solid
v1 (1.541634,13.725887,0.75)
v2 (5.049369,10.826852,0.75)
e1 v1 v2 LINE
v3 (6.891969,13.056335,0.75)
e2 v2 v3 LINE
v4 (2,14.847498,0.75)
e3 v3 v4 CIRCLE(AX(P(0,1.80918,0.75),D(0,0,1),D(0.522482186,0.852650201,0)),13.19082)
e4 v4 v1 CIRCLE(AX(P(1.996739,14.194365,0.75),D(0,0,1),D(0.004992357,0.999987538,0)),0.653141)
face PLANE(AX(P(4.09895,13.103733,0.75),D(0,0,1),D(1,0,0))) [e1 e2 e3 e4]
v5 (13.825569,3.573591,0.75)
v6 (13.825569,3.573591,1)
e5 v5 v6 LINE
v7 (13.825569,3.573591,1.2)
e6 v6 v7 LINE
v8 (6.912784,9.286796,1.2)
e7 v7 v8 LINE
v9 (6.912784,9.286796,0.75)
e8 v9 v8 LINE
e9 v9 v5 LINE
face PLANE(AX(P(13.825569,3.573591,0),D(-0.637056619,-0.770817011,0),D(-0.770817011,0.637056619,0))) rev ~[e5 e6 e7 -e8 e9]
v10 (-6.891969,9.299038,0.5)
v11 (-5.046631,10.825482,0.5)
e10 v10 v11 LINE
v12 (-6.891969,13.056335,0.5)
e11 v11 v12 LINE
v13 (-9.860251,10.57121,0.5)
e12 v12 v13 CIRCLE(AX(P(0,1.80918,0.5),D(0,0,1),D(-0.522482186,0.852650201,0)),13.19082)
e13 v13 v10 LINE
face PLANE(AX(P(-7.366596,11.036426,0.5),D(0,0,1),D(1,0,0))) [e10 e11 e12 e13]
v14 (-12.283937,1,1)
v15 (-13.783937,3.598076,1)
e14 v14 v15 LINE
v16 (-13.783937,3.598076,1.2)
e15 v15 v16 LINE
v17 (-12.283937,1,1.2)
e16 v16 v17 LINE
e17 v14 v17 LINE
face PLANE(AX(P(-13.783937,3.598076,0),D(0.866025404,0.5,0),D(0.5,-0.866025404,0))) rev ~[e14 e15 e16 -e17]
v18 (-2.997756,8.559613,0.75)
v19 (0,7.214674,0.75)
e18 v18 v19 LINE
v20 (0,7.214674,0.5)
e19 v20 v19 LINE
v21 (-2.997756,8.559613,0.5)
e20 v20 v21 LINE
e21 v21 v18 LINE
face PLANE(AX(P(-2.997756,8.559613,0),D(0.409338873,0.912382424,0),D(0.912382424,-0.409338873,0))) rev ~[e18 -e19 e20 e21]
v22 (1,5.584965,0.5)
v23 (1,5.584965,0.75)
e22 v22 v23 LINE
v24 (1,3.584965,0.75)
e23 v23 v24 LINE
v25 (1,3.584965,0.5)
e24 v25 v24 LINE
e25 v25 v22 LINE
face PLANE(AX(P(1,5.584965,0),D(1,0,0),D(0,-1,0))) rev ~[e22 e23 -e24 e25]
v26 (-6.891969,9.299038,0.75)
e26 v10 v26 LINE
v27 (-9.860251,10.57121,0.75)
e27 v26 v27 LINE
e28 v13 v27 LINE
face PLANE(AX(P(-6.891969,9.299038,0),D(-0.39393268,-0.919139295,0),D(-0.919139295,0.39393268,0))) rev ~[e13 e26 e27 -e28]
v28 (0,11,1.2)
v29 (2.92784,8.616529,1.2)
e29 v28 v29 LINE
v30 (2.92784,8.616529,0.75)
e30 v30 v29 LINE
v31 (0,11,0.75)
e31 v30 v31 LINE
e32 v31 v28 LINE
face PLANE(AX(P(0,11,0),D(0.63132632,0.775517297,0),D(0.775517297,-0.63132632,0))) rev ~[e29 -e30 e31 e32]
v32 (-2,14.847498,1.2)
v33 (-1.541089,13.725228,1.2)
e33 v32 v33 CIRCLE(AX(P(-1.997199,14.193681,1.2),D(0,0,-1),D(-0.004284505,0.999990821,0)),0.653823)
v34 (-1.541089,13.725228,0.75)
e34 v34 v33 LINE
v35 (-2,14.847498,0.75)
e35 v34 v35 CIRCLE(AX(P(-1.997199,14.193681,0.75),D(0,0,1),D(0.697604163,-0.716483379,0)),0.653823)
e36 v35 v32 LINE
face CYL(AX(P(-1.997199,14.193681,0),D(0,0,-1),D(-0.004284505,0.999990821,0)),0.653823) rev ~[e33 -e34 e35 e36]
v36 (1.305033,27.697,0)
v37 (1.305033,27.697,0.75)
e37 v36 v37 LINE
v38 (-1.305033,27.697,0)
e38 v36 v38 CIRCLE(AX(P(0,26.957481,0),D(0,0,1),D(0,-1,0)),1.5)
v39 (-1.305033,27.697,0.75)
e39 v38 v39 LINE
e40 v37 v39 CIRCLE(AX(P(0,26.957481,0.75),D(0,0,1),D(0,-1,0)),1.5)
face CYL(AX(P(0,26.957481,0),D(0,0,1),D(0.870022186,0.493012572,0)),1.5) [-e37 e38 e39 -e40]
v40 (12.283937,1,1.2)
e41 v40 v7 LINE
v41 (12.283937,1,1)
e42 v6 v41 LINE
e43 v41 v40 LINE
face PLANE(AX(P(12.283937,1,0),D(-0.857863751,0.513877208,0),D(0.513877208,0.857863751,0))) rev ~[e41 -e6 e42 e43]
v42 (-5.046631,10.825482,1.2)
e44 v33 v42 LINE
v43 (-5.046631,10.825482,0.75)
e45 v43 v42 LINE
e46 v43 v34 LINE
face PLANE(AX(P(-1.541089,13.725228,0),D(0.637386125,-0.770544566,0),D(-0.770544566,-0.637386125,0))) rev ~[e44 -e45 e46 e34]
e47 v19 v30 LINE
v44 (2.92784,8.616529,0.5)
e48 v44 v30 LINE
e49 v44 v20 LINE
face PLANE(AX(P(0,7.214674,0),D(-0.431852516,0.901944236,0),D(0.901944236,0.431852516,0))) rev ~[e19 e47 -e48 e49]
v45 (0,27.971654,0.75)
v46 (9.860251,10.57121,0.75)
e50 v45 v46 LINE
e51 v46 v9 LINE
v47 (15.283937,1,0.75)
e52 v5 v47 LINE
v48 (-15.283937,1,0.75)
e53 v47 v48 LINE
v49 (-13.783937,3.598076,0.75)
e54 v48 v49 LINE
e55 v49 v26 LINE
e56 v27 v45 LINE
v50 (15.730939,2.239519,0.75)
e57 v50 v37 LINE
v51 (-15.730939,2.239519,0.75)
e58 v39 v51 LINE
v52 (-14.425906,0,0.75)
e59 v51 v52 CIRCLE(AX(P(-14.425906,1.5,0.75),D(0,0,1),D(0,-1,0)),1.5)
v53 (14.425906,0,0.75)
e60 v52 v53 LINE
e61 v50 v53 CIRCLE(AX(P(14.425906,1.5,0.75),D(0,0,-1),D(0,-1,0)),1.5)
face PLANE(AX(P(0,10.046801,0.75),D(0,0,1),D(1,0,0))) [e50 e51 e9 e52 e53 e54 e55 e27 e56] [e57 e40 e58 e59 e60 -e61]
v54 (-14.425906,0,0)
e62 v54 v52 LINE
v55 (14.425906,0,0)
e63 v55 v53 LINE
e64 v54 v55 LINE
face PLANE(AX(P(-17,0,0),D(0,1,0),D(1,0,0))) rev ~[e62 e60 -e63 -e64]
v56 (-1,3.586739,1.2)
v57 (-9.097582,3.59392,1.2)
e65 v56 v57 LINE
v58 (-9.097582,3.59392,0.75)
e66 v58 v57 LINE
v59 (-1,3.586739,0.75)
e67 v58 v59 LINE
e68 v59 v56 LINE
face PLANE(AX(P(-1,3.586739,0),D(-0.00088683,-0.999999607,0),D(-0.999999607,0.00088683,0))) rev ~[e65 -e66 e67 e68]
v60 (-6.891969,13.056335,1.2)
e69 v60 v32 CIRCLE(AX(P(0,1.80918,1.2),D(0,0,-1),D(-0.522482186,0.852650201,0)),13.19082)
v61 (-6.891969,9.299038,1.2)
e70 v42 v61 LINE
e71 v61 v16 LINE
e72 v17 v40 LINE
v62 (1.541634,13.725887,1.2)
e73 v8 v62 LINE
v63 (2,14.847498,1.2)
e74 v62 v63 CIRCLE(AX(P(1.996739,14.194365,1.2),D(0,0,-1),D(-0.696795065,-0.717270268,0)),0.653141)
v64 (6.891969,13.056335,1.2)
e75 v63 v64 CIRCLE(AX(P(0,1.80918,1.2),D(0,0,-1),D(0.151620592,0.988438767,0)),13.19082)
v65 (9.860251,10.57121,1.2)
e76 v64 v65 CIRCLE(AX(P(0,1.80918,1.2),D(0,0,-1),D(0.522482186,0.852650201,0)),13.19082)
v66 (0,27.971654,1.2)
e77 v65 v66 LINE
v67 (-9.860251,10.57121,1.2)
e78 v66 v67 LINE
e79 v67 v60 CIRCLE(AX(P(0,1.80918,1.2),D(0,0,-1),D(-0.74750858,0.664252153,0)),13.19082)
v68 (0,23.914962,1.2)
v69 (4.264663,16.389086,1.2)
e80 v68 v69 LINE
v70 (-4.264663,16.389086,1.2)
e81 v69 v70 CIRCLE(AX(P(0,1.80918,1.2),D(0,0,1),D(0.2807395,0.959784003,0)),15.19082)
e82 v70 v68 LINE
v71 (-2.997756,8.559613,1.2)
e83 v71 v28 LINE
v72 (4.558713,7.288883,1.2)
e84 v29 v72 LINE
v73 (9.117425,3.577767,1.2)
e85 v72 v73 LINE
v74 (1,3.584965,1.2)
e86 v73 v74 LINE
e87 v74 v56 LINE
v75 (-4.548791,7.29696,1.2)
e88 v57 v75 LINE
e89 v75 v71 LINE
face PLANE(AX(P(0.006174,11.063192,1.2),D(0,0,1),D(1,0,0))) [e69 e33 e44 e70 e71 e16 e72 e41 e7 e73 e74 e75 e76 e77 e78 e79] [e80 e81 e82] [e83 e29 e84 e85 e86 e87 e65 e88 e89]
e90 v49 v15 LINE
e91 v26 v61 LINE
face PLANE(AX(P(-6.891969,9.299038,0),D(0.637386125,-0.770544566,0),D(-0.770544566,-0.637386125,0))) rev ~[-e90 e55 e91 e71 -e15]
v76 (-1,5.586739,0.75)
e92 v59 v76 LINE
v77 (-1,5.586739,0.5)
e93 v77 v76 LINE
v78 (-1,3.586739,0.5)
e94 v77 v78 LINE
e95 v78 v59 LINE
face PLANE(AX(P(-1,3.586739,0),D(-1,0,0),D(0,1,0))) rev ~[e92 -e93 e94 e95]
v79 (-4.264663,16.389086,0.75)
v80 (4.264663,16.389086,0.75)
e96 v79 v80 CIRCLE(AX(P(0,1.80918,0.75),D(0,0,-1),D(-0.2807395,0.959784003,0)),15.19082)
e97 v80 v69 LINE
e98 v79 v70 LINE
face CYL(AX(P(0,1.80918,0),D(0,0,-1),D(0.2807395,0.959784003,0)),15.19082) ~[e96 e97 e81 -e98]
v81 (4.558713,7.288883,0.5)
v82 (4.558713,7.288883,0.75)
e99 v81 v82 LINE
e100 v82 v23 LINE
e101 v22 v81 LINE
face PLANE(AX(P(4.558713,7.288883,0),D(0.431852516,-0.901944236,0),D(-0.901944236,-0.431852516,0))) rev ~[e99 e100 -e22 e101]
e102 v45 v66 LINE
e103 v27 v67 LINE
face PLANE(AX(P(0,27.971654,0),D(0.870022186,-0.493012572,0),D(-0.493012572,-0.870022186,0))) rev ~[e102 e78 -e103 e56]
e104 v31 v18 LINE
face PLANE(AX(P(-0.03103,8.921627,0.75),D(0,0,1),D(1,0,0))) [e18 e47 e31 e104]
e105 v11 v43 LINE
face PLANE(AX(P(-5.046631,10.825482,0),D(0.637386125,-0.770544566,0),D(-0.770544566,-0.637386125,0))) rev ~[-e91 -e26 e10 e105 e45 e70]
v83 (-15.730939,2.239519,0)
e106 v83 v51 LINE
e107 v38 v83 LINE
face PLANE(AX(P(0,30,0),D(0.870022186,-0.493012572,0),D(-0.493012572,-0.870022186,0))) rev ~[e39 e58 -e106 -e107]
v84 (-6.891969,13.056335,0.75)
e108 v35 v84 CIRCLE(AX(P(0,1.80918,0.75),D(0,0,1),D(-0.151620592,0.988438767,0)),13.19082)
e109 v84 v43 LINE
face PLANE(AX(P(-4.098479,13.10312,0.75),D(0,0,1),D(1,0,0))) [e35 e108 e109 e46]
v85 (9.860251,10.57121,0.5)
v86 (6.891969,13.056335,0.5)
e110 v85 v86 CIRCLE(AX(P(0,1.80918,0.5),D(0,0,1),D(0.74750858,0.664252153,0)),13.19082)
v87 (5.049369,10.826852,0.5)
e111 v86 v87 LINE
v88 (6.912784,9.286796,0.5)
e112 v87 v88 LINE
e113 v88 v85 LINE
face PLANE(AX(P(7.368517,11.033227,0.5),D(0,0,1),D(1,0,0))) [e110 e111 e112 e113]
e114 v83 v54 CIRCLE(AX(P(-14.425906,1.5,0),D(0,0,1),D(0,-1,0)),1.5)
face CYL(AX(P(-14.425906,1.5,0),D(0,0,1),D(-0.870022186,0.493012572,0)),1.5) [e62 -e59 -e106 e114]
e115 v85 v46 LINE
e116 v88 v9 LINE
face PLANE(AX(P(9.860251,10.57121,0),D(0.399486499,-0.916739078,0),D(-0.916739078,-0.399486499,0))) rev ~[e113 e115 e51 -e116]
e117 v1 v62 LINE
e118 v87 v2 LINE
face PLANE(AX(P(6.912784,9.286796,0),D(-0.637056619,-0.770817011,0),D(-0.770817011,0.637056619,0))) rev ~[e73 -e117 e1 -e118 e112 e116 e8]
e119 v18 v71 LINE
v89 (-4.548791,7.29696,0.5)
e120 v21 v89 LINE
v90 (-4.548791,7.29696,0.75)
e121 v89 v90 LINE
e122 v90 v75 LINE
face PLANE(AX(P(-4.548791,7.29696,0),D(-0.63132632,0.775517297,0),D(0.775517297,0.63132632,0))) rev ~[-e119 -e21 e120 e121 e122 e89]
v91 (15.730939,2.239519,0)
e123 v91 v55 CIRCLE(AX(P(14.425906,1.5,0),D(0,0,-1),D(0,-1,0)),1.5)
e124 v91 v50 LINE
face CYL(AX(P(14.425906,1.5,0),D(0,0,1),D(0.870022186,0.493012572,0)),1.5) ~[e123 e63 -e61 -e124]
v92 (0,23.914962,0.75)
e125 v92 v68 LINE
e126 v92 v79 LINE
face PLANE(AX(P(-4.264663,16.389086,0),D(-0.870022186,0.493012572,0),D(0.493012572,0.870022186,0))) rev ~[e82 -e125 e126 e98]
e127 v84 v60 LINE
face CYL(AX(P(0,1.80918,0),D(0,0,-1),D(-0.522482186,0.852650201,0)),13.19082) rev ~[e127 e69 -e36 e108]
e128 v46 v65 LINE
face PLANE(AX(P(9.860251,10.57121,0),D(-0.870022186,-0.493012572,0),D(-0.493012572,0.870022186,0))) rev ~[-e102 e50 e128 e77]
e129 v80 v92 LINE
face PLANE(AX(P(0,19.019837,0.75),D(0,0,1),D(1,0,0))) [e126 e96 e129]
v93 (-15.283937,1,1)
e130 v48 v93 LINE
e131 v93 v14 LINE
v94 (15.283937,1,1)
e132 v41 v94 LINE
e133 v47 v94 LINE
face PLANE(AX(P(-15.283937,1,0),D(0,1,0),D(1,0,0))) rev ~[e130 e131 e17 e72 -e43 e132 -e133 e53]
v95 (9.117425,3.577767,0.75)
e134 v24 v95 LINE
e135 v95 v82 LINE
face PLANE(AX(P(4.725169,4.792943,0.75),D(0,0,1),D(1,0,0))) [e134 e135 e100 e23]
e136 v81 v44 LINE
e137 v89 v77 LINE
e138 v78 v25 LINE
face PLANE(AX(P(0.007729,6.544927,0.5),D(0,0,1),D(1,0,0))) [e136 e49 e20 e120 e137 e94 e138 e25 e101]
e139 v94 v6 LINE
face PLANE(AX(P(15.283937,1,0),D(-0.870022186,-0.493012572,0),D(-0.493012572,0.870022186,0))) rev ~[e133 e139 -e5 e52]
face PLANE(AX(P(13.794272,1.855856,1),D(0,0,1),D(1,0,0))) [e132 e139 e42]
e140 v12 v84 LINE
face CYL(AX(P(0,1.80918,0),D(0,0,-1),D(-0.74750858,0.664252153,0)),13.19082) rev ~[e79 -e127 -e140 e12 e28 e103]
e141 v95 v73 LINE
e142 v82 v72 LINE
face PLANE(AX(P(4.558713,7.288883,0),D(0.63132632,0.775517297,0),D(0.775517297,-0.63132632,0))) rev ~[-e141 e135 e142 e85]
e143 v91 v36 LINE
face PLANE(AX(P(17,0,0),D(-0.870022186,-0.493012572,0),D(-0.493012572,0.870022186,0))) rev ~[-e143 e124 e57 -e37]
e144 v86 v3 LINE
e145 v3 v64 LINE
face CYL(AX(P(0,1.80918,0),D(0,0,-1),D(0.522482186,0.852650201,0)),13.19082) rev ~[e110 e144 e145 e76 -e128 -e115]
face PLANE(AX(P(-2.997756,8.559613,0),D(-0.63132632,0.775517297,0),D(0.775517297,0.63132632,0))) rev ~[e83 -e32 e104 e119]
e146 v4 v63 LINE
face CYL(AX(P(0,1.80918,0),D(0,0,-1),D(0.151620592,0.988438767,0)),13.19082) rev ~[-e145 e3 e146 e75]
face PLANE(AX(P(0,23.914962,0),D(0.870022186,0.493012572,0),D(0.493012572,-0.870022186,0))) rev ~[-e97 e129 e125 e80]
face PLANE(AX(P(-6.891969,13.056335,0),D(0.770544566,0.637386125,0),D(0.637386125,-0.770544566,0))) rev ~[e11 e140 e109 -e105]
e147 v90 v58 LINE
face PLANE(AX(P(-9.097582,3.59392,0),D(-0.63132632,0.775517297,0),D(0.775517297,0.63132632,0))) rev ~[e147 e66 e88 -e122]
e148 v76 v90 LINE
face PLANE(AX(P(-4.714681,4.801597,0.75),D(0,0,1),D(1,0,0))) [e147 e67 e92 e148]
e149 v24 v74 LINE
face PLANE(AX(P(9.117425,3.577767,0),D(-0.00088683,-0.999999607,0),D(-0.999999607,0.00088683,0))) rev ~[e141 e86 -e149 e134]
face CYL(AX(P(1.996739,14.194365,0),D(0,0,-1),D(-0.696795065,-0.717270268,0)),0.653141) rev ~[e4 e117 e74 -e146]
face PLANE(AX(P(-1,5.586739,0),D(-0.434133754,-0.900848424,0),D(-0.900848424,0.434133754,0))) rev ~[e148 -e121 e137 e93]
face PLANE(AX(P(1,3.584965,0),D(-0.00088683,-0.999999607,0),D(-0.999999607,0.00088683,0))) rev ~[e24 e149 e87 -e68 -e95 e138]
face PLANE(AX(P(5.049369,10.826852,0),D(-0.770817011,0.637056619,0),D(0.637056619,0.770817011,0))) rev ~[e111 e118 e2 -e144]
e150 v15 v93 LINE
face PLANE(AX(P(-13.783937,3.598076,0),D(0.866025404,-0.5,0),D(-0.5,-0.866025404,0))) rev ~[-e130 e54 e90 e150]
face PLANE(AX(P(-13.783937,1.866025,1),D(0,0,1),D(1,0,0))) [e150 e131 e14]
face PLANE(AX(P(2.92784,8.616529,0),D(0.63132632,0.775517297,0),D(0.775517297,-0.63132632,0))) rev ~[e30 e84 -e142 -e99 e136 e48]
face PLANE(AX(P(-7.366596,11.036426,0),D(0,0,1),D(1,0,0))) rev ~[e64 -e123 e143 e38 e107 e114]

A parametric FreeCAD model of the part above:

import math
import FreeCAD as App
import Part
import Sketcher
Q = App.Units.Quantity


def edges_at(feature, points):
    """Names of the edges that pass closest to the given points."""
    edges = feature.Shape.Edges
    near = lambda p: min(range(len(edges)), key=lambda i: edges[i].distToShape(Part.Vertex(*p))[0])
    return sorted({f"Edge{near(p) + 1}" for p in points})


def add_polygon(sketch, points):
    """Adds a closed chain of lines whose ends are joined by coincident constraints."""
    first, n = sketch.GeometryCount, len(points)
    for a, b in zip(points, points[1:] + points[:1]):
        sketch.addGeometry(Part.LineSegment(App.Vector(*a, 0), App.Vector(*b, 0)), False)
    for i in range(n):
        sketch.addConstraint(Sketcher.Constraint("Coincident", first + i, 2, first + (i + 1) % n, 1))

doc = App.newDocument("Part")
body = doc.addObject("PartDesign::Body", "Body")

# Sketch on XY plane
sketch1 = body.newObject("Sketcher::SketchObject", "Sketch")
sketch1.AttachmentSupport = (doc.getObject("XY_Plane"), [""])
sketch1.MapMode = "FlatFace"
add_polygon(sketch1, [(17, 0), (0, 30), (-17, 0)])  # lines 0-2
add_polygon(sketch1, [(-6.9, 9.3), (-9.9, 10.6), (0, 28), (9.9, 10.6), (6.9, 9.3), (13.8, 3.6), (15.3, 1), (-15.3, 1), (-13.8, 3.6)])  # lines 3-11
sketch1.addConstraint([
    Sketcher.Constraint("Horizontal", 2),
    Sketcher.Constraint("Horizontal", 9),
    Sketcher.Constraint("Symmetric", 1, 2, 2, 2, -1, 1),
    Sketcher.Constraint("Symmetric", 3, 2, 5, 2, -2),
    Sketcher.Constraint("PointOnObject", 0, 2, -2),
    Sketcher.Constraint("PointOnObject", 4, 2, -2),
    Sketcher.Constraint("Parallel", 1, 4),
    Sketcher.Constraint("Parallel", 5, 8),
    Sketcher.Constraint("DistanceX", 2, 1, 2, 2, 34.0),
    Sketcher.Constraint("Angle", 10, Q("60 deg")),
    Sketcher.Constraint("Distance", 4, 20.0),
    Sketcher.Constraint("Distance", 10, 3.0),
    Sketcher.Constraint("DistanceY", -1, 1, 0, 2, 30.0),
    Sketcher.Constraint("DistanceY", -1, 1, 8, 2, 1.0),
    Sketcher.Constraint("DistanceX", 9, 2, 9, 1, 30.567875),
    Sketcher.Constraint("DistanceY", -1, 1, 3, 2, 10.57121),
    Sketcher.Constraint("DistanceX", -1, 1, 7, 2, 13.825569),
    Sketcher.Constraint("DistanceY", -1, 1, 7, 2, 3.573591),
    Sketcher.Constraint("DistanceX", 11, 2, -1, 1, 6.891969),
    Sketcher.Constraint("DistanceY", -1, 1, 11, 2, 9.299038),
    Sketcher.Constraint("DistanceY", 6, 2, 4, 2, 18.684859),
    Sketcher.Constraint("DistanceX", 9, 2, 6, 2, 22.196722),
])
pad1 = body.newObject("PartDesign::Pad", "Pad")
pad1.Profile = sketch1
pad1.Length = 0.75
body2 = doc.addObject("PartDesign::Body", "Body001")

# Sketch on XY plane
sketch2 = body2.newObject("Sketcher::SketchObject", "Sketch001")
sketch2.AttachmentSupport = (doc.getObject("XY_Plane001"), [""])
sketch2.MapMode = "FlatFace"
sketch2.addGeometry([
    Part.LineSegment(App.Vector(4, 16, 0), App.Vector(0, 24, 0)),
    Part.LineSegment(App.Vector(0, 24, 0), App.Vector(-4, 16, 0)),
    Part.ArcOfCircle(Part.Circle(App.Vector(0, 2, 0), App.Vector(0, 0, 1), 15), math.radians(74), math.radians(106)),
], False)
sketch2.addConstraint([
    Sketcher.Constraint("Coincident", 0, 2, 1, 1),
    Sketcher.Constraint("Coincident", 1, 2, 2, 2),
    Sketcher.Constraint("Coincident", 2, 1, 0, 1),
    Sketcher.Constraint("Symmetric", 1, 2, 2, 1, -2),
    Sketcher.Constraint("PointOnObject", 0, 2, -2),
    Sketcher.Constraint("Radius", 2, 15.19082),
    Sketcher.Constraint("DistanceY", -1, 1, 2, 3, 1.80918),
    Sketcher.Constraint("Distance", 0, 8.650212),
    Sketcher.Constraint("DistanceY", -1, 1, 0, 2, 23.914962),
])
pad2 = body2.newObject("PartDesign::Pad", "Pad001")
pad2.Profile = sketch2
pad2.Length = 0.75
body3 = doc.addObject("PartDesign::Body", "Body002")

# Sketch on XY plane
sketch3 = body3.newObject("Sketcher::SketchObject", "Sketch002")
sketch3.AttachmentSupport = (doc.getObject("XY_Plane002"), [""])
sketch3.MapMode = "FlatFace"
sketch3.addGeometry([
    Part.ArcOfCircle(Part.Circle(App.Vector(0, 1.8, 0), App.Vector(0, 0, 1), 13.2), math.radians(99), math.radians(121)),
    Part.LineSegment(App.Vector(-6.9, 13.1, 0), App.Vector(-5, 10.8, 0)),
    Part.LineSegment(App.Vector(-5, 10.8, 0), App.Vector(-1.5, 13.7, 0)),
    Part.ArcOfCircle(Part.Circle(App.Vector(-2, 14.2, 0), App.Vector(0, 0, 1), 0.7), math.radians(-46), math.radians(90)),
], False)
sketch3.addConstraint([
    Sketcher.Constraint("Coincident", 0, 2, 1, 1),
    Sketcher.Constraint("Coincident", 1, 2, 2, 1),
    Sketcher.Constraint("Coincident", 2, 2, 3, 1),
    Sketcher.Constraint("Coincident", 3, 2, 0, 1),
    Sketcher.Constraint("PointOnObject", 0, 3, -2),
    Sketcher.Constraint("Perpendicular", 1, 2),
    Sketcher.Constraint("DistanceX", 3, 2, -1, 1, 2.0),
    Sketcher.Constraint("Radius", 0, 13.19082),
    Sketcher.Constraint("Radius", 3, 0.653823),
    Sketcher.Constraint("DistanceX", 3, 3, -1, 1, 1.997199),
    Sketcher.Constraint("DistanceY", 1, 2, 3, 3, 3.368199),
    Sketcher.Constraint("DistanceY", -1, 1, 0, 3, 1.80918),
    Sketcher.Constraint("DistanceX", 0, 2, -1, 1, 6.891969),
    Sketcher.Constraint("DistanceX", 1, 2, -1, 1, 5.046631),
])
pad3 = body3.newObject("PartDesign::Pad", "Pad002")
pad3.Profile = sketch3
pad3.Length = 0.75
body4 = doc.addObject("PartDesign::Body", "Body003")

# Sketch on XY plane
sketch4 = body4.newObject("Sketcher::SketchObject", "Sketch003")
sketch4.AttachmentSupport = (doc.getObject("XY_Plane003"), [""])
sketch4.MapMode = "FlatFace"
sketch4.addGeometry([
    Part.LineSegment(App.Vector(5, 10.8, 0), App.Vector(6.9, 13.1, 0)),
    Part.ArcOfCircle(Part.Circle(App.Vector(0, 1.8, 0), App.Vector(0, 0, 1), 13.2), math.radians(59), math.radians(81)),
    Part.ArcOfCircle(Part.Circle(App.Vector(2, 14.2, 0), App.Vector(0, 0, 1), 0.7), math.radians(90), math.radians(226)),
    Part.LineSegment(App.Vector(1.5, 13.7, 0), App.Vector(5, 10.8, 0)),
], False)
sketch4.addConstraint([
    Sketcher.Constraint("Coincident", 0, 2, 1, 1),
    Sketcher.Constraint("Coincident", 1, 2, 2, 1),
    Sketcher.Constraint("Coincident", 2, 2, 3, 1),
    Sketcher.Constraint("Coincident", 3, 2, 0, 1),
    Sketcher.Constraint("PointOnObject", 1, 3, -2),
    Sketcher.Constraint("Perpendicular", 0, 3),
    Sketcher.Constraint("DistanceX", -1, 1, 1, 2, 2.0),
    Sketcher.Constraint("Radius", 1, 13.19082),
    Sketcher.Constraint("Radius", 2, 0.653141),
    Sketcher.Constraint("DistanceX", 3, 2, 0, 2, 1.8426),
    Sketcher.Constraint("Distance", 3, 4.550671),
    Sketcher.Constraint("DistanceY", -1, 1, 1, 3, 1.80918),
    Sketcher.Constraint("DistanceX", -1, 1, 2, 3, 1.996739),
    Sketcher.Constraint("DistanceX", -1, 1, 0, 2, 6.891969),
])
pad4 = body4.newObject("PartDesign::Pad", "Pad003")
pad4.Profile = sketch4
pad4.Length = 0.75
body5 = doc.addObject("PartDesign::Body", "Body004")

# Sketch on XY plane
sketch5 = body5.newObject("Sketcher::SketchObject", "Sketch004")
sketch5.AttachmentSupport = (doc.getObject("XY_Plane004"), [""])
sketch5.MapMode = "FlatFace"
add_polygon(sketch5, [(0, 11), (-3, 8.6), (0, 7.2), (2.9, 8.6)])  # lines 0-3
sketch5.addConstraint([
    Sketcher.Constraint("PointOnObject", 1, 2, -2),
    Sketcher.Constraint("PointOnObject", 3, 2, -2),
    Sketcher.Constraint("DistanceY", -1, 1, 3, 2, 11.0),
    Sketcher.Constraint("Distance", 3, 3.775338),
    Sketcher.Constraint("DistanceX", -1, 1, 2, 2, 2.92784),
    Sketcher.Constraint("DistanceY", 1, 2, 0, 2, 1.344938),
    Sketcher.Constraint("Distance", 0, 3.865493),
    Sketcher.Constraint("Distance", 1, 3.285636),
])
pad5 = body5.newObject("PartDesign::Pad", "Pad004")
pad5.Profile = sketch5
pad5.Length = 0.75
body6 = doc.addObject("PartDesign::Body", "Body005")

# Sketch on XY plane
sketch6 = body6.newObject("Sketcher::SketchObject", "Sketch005")
sketch6.AttachmentSupport = (doc.getObject("XY_Plane005"), [""])
sketch6.MapMode = "FlatFace"
add_polygon(sketch6, [(-4.5, 7.3), (-9.1, 3.6), (-1, 3.6), (-1, 5.6)])  # lines 0-3
sketch6.addConstraint([
    Sketcher.Constraint("Vertical", 2),
    Sketcher.Constraint("DistanceY", 2, 1, 2, 2, 2.0),
    Sketcher.Constraint("DistanceX", 1, 2, -1, 1, 1.0),
    Sketcher.Constraint("DistanceY", -1, 1, 0, 2, 3.59392),
    Sketcher.Constraint("DistanceY", -1, 1, 1, 2, 3.586739),
    Sketcher.Constraint("DistanceX", 3, 2, -1, 1, 4.548791),
    Sketcher.Constraint("DistanceY", -1, 1, 3, 2, 7.29696),
    Sketcher.Constraint("DistanceX", 0, 2, 3, 2, 4.548791),
])
pad6 = body6.newObject("PartDesign::Pad", "Pad005")
pad6.Profile = sketch6
pad6.Length = 0.75
body7 = doc.addObject("PartDesign::Body", "Body006")

# Sketch on XY plane
sketch7 = body7.newObject("Sketcher::SketchObject", "Sketch006")
sketch7.AttachmentSupport = (doc.getObject("XY_Plane006"), [""])
sketch7.MapMode = "FlatFace"
add_polygon(sketch7, [(1, 5.6), (1, 3.6), (9.1, 3.6), (4.6, 7.3)])  # lines 0-3
sketch7.addConstraint([
    Sketcher.Constraint("Vertical", 0),
    Sketcher.Constraint("DistanceY", 0, 2, 0, 1, 2.0),
    Sketcher.Constraint("DistanceX", -1, 1, 0, 2, 1.0),
    Sketcher.Constraint("Distance", 3, 3.945601),
    Sketcher.Constraint("DistanceY", 1, 2, 0, 2, 0.007199),
    Sketcher.Constraint("Distance", 1, 8.117428),
    Sketcher.Constraint("Distance", 2, 5.878286),
    Sketcher.Constraint("DistanceY", -1, 1, 0, 2, 3.584965),
])
pad7 = body7.newObject("PartDesign::Pad", "Pad006")
pad7.Profile = sketch7
pad7.Length = 0.75
body.AllowCompound = True
doc.recompute()

boolean = body.newObject("PartDesign::Boolean", "Boolean")
boolean.Type = "Fuse"
boolean.addObjects([body2])
doc.recompute()

boolean2 = body.newObject("PartDesign::Boolean", "Boolean001")
boolean2.Type = "Fuse"
boolean2.addObjects([body3])
doc.recompute()

boolean3 = body.newObject("PartDesign::Boolean", "Boolean002")
boolean3.Type = "Fuse"
boolean3.addObjects([body4])
doc.recompute()

boolean4 = body.newObject("PartDesign::Boolean", "Boolean003")
boolean4.Type = "Fuse"
boolean4.addObjects([body5])
doc.recompute()

boolean5 = body.newObject("PartDesign::Boolean", "Boolean004")
boolean5.Type = "Fuse"
boolean5.addObjects([body6])
doc.recompute()

boolean6 = body.newObject("PartDesign::Boolean", "Boolean005")
boolean6.Type = "Fuse"
boolean6.addObjects([body7])

# Sketch on XY plane
sketch8 = body.newObject("Sketcher::SketchObject", "Sketch007")
sketch8.AttachmentSupport = (doc.getObject("XY_Plane"), [""])
sketch8.MapMode = "FlatFace"
sketch8.addGeometry(Part.LineSegment(App.Vector(9.9, 10.6, 0), App.Vector(0, 28, 0)), False)  # 0
sketch8.addGeometry(Part.LineSegment(App.Vector(0, 28, 0), App.Vector(-9.9, 10.6, 0)), False)  # 1
sketch8.addGeometry(Part.ArcOfCircle(Part.Circle(App.Vector(0, 1.8, 0), App.Vector(0, 0, 1), 13.2), math.radians(121.5), math.radians(138.38)), False)  # 2
sketch8.addGeometry(Part.ArcOfCircle(Part.Circle(App.Vector(0, 1.8, 0), App.Vector(0, 0, 1), 13.2), math.radians(99), math.radians(121)), False)  # 3
sketch8.addGeometry(Part.ArcOfCircle(Part.Circle(App.Vector(-2, 14.2, 0), App.Vector(0, 0, 1), 0.7), math.radians(-46), math.radians(90)), False)  # 4
sketch8.addGeometry(Part.LineSegment(App.Vector(-1.5, 13.7, 0), App.Vector(-5, 10.8, 0)), False)  # 5
sketch8.addGeometry(Part.LineSegment(App.Vector(-5, 10.8, 0), App.Vector(-6.9, 9.3, 0)), False)  # 6
sketch8.addGeometry(Part.LineSegment(App.Vector(-6.9, 9.3, 0), App.Vector(-13.8, 3.6, 0)), False)  # 7
sketch8.addGeometry(Part.LineSegment(App.Vector(-13.8, 3.6, 0), App.Vector(-12.3, 1, 0)), False)  # 8
sketch8.addGeometry(Part.LineSegment(App.Vector(-12.3, 1, 0), App.Vector(12.3, 1, 0)), False)  # 9
sketch8.addGeometry(Part.LineSegment(App.Vector(12.3, 1, 0), App.Vector(13.8, 3.6, 0)), False)  # 10
sketch8.addGeometry(Part.LineSegment(App.Vector(13.8, 3.6, 0), App.Vector(6.9, 9.3, 0)), False)  # 11
sketch8.addGeometry(Part.LineSegment(App.Vector(6.9, 9.3, 0), App.Vector(1.5, 13.7, 0)), False)  # 12
sketch8.addGeometry(Part.ArcOfCircle(Part.Circle(App.Vector(2, 14.2, 0), App.Vector(0, 0, 1), 0.7), math.radians(90), math.radians(226)), False)  # 13
sketch8.addGeometry(Part.ArcOfCircle(Part.Circle(App.Vector(0, 1.8, 0), App.Vector(0, 0, 1), 13.2), math.radians(59), math.radians(81)), False)  # 14
sketch8.addGeometry(Part.ArcOfCircle(Part.Circle(App.Vector(0, 1.8, 0), App.Vector(0, 0, 1), 13.2), math.radians(41.62), math.radians(58.5)), False)  # 15
add_polygon(sketch8, [(1, 3.6), (-1, 3.6), (-9.1, 3.6), (-4.5, 7.3), (-3, 8.6), (0, 11), (2.9, 8.6), (4.6, 7.3), (9.1, 3.6)])  # lines 16-24
sketch8.addGeometry(Part.ArcOfCircle(Part.Circle(App.Vector(0, 1.8, 0), App.Vector(0, 0, 1), 15.2), math.radians(74), math.radians(106)), False)  # 25
sketch8.addGeometry(Part.LineSegment(App.Vector(-4.3, 16.4, 0), App.Vector(0, 23.9, 0)), False)  # 26
sketch8.addGeometry(Part.LineSegment(App.Vector(0, 23.9, 0), App.Vector(4.3, 16.4, 0)), False)  # 27
sketch8.addConstraint([
    Sketcher.Constraint("Coincident", 0, 2, 1, 1),
    Sketcher.Constraint("Coincident", 1, 2, 2, 2),
    Sketcher.Constraint("Tangent", 2, 1, 3, 2),
    Sketcher.Constraint("Coincident", 3, 1, 4, 2),
    Sketcher.Constraint("Coincident", 4, 1, 5, 1),
    Sketcher.Constraint("Coincident", 5, 2, 6, 1),
    Sketcher.Constraint("Coincident", 6, 2, 7, 1),
    Sketcher.Constraint("Coincident", 7, 2, 8, 1),
    Sketcher.Constraint("Coincident", 8, 2, 9, 1),
    Sketcher.Constraint("Coincident", 9, 2, 10, 1),
    Sketcher.Constraint("Coincident", 10, 2, 11, 1),
    Sketcher.Constraint("Coincident", 11, 2, 12, 1),
    Sketcher.Constraint("Coincident", 12, 2, 13, 2),
    Sketcher.Constraint("Coincident", 13, 1, 14, 2),
    Sketcher.Constraint("Tangent", 14, 1, 15, 2),
    Sketcher.Constraint("Coincident", 15, 1, 0, 1),
    Sketcher.Constraint("Coincident", 25, 2, 26, 1),
    Sketcher.Constraint("Coincident", 26, 2, 27, 1),
    Sketcher.Constraint("Coincident", 27, 2, 25, 1),
    Sketcher.Constraint("Horizontal", 9),
    Sketcher.Constraint("Coincident", 14, 3, 2, 3),
    Sketcher.Constraint("Coincident", 25, 3, 2, 3),
    Sketcher.Constraint("Equal", 2, 3),
    Sketcher.Constraint("Equal", 3, 14),
    Sketcher.Constraint("Equal", 14, 15),
    Sketcher.Constraint("Symmetric", 3, 1, 13, 1, -2),
    Sketcher.Constraint("PointOnObject", 0, 2, -2),
    Sketcher.Constraint("PointOnObject", 20, 2, -2),
    Sketcher.Constraint("PointOnObject", 26, 2, -2),
    Sketcher.Constraint("Parallel", 5, 6),
    Sketcher.Constraint("Parallel", 6, 7),
    Sketcher.Constraint("Parallel", 11, 12),
    Sketcher.Constraint("Parallel", 16, 17),
    Sketcher.Constraint("Parallel", 18, 19),
    Sketcher.Constraint("Parallel", 19, 20),
    Sketcher.Constraint("Parallel", 21, 22),
    Sketcher.Constraint("Parallel", 22, 23),
    Sketcher.Constraint("Parallel", 17, 24),
    Sketcher.Constraint("Parallel", 1, 26),
    Sketcher.Constraint("Parallel", 0, 27),
    Sketcher.Constraint("Horizontal", 2, 1, 14, 1),
    Sketcher.Constraint("Horizontal", 1, 2, 15, 1),
    Sketcher.Constraint("Vertical", 2, 1, 6, 2),
    Sketcher.Constraint("Equal", 8, 10),
    Sketcher.Constraint("Equal", 16, 19),
    Sketcher.Constraint("Angle", 8, Q("-60 deg")),
    Sketcher.Constraint("Distance", 0, 20.0),
    Sketcher.Constraint("Distance", 8, 3.0),
    Sketcher.Constraint("Distance", 16, 2.000001),
    Sketcher.Constraint("DistanceX", 3, 1, -1, 1, 2.0),
    Sketcher.Constraint("DistanceY", -1, 1, 8, 2, 1.0),
    Sketcher.Constraint("DistanceX", 16, 2, -1, 1, 1.0),
    Sketcher.Constraint("DistanceY", -1, 1, 20, 2, 11.0),
    Sketcher.Constraint("Radius", 2, 13.19082),
    Sketcher.Constraint("Radius", 13, 0.653141),
    Sketcher.Constraint("Radius", 25, 15.19082),
    Sketcher.Constraint("Radius", 4, 0.653823),
    Sketcher.Constraint("DistanceX", 4, 3, -1, 1, 1.997199),
    Sketcher.Constraint("DistanceY", 5, 2, 4, 3, 3.368199),
    Sketcher.Constraint("DistanceX", 13, 3, 21, 2, 0.931101),
    Sketcher.Constraint("DistanceY", 12, 2, 27, 2, 2.663199),
    Sketcher.Constraint("Distance", 6, 2.394849),
    Sketcher.Constraint("Distance", 21, 3.775338),
    Sketcher.Constraint("Distance", 24, 8.117428),
    Sketcher.Constraint("DistanceX", 9, 1, 9, 2, 24.567875),
    Sketcher.Constraint("DistanceY", -1, 1, 2, 3, 1.80918),
    Sketcher.Constraint("DistanceX", -1, 1, 13, 3, 1.996739),
    Sketcher.Constraint("DistanceX", 1, 2, -1, 1, 9.860251),
    Sketcher.Constraint("DistanceX", 2, 1, -1, 1, 6.891969),
    Sketcher.Constraint("DistanceX", 4, 1, -1, 1, 1.541089),
    Sketcher.Constraint("DistanceX", -1, 1, 10, 2, 13.825569),
    Sketcher.Constraint("DistanceY", -1, 1, 16, 2, 3.586739),
    Sketcher.Constraint("DistanceX", 18, 2, -1, 1, 4.548791),
    Sketcher.Constraint("DistanceY", -1, 1, 18, 2, 7.29696),
    Sketcher.Constraint("DistanceY", 11, 2, 13, 3, 4.90757),
    Sketcher.Constraint("DistanceY", 12, 2, 13, 3, 0.468478),
    Sketcher.Constraint("DistanceX", 22, 2, 11, 2, 2.354072),
])
pad8 = body.newObject("PartDesign::Pad", "Pad007")
pad8.Profile = sketch8
pad8.Length = 1.2

# Sketch on XY plane
sketch9 = body.newObject("Sketcher::SketchObject", "Sketch008")
sketch9.AttachmentSupport = (doc.getObject("XY_Plane"), [""])
sketch9.MapMode = "FlatFace"
sketch9.addGeometry(Part.ArcOfCircle(Part.Circle(App.Vector(0, 1.8, 0), App.Vector(0, 0, 1), 13.2), math.radians(121.5), math.radians(138.38)), False)  # 0
sketch9.addGeometry(Part.LineSegment(App.Vector(-9.9, 10.6, 0), App.Vector(-6.9, 9.3, 0)), False)  # 1
sketch9.addGeometry(Part.LineSegment(App.Vector(-6.9, 9.3, 0), App.Vector(-5, 10.8, 0)), False)  # 2
sketch9.addGeometry(Part.LineSegment(App.Vector(-5, 10.8, 0), App.Vector(-6.9, 13.1, 0)), False)  # 3
add_polygon(sketch9, [(-1, 5.6), (-1, 3.6), (1, 3.6), (1, 5.6), (4.6, 7.3), (2.9, 8.6), (0, 7.2), (-3, 8.6), (-4.5, 7.3)])  # lines 4-12
sketch9.addGeometry(Part.LineSegment(App.Vector(6.9, 9.3, 0), App.Vector(9.9, 10.6, 0)), False)  # 13
sketch9.addGeometry(Part.ArcOfCircle(Part.Circle(App.Vector(0, 1.8, 0), App.Vector(0, 0, 1), 13.2), math.radians(41.62), math.radians(58.5)), False)  # 14
sketch9.addGeometry(Part.LineSegment(App.Vector(6.9, 13.1, 0), App.Vector(5, 10.8, 0)), False)  # 15
sketch9.addGeometry(Part.LineSegment(App.Vector(5, 10.8, 0), App.Vector(6.9, 9.3, 0)), False)  # 16
sketch9.addConstraint([
    Sketcher.Constraint("Coincident", 0, 2, 1, 1),
    Sketcher.Constraint("Coincident", 1, 2, 2, 1),
    Sketcher.Constraint("Coincident", 2, 2, 3, 1),
    Sketcher.Constraint("Coincident", 3, 2, 0, 1),
    Sketcher.Constraint("Coincident", 13, 2, 14, 1),
    Sketcher.Constraint("Coincident", 14, 2, 15, 1),
    Sketcher.Constraint("Coincident", 15, 2, 16, 1),
    Sketcher.Constraint("Coincident", 16, 2, 13, 1),
    Sketcher.Constraint("Vertical", 4),
    Sketcher.Constraint("Vertical", 6),
    Sketcher.Constraint("Coincident", 14, 3, 0, 3),
    Sketcher.Constraint("Equal", 0, 14),
    Sketcher.Constraint("Symmetric", 0, 2, 13, 2, -2),
    Sketcher.Constraint("PointOnObject", 9, 2, -2),
    Sketcher.Constraint("Perpendicular", 2, 3),
    Sketcher.Constraint("Parallel", 7, 9),
    Sketcher.Constraint("Perpendicular", 15, 16),
    Sketcher.Constraint("Horizontal", 3, 2, 14, 2),
    Sketcher.Constraint("Vertical", 1, 2, 3, 2),
    Sketcher.Constraint("Equal", 4, 6),
    Sketcher.Constraint("Equal", 5, 11),
    Sketcher.Constraint("DistanceY", 4, 2, 4, 1, 2.0),
    Sketcher.Constraint("Distance", 5, 2.000001),
    Sketcher.Constraint("DistanceX", 4, 2, -1, 1, 1.0),
    Sketcher.Constraint("Radius", 0, 13.19082),
    Sketcher.Constraint("Distance", 7, 3.945601),
    Sketcher.Constraint("DistanceY", 4, 2, 1, 2, 5.712299),
    Sketcher.Constraint("DistanceX", 15, 2, 14, 2, 1.8426),
    Sketcher.Constraint("Distance", 2, 2.394849),
    Sketcher.Constraint("DistanceY", -1, 1, 0, 3, 1.80918),
    Sketcher.Constraint("DistanceX", 0, 2, -1, 1, 9.860251),
    Sketcher.Constraint("DistanceX", 1, 2, -1, 1, 6.891969),
    Sketcher.Constraint("DistanceY", -1, 1, 1, 2, 9.299038),
    Sketcher.Constraint("DistanceX", -1, 1, 8, 2, 2.92784),
    Sketcher.Constraint("DistanceY", -1, 1, 8, 2, 8.616529),
    Sketcher.Constraint("DistanceX", 11, 2, -1, 1, 4.548791),
    Sketcher.Constraint("DistanceY", -1, 1, 11, 2, 7.29696),
    Sketcher.Constraint("DistanceY", -1, 1, 15, 2, 10.826852),
    Sketcher.Constraint("DistanceY", 6, 2, 9, 2, 1.629709),
    Sketcher.Constraint("DistanceY", 9, 2, 7, 2, 0.074209),
    Sketcher.Constraint("DistanceY", 10, 2, 2, 2, 2.265869),
    Sketcher.Constraint("DistanceX", 7, 2, 16, 2, 2.354072),
])
pad9 = body.newObject("PartDesign::Pad", "Pad008")
pad9.Profile = sketch9
pad9.Length = 0.5
doc.recompute()

fillet = body.newObject("PartDesign::Fillet", "Fillet")
fillet.Base = (pad9, edges_at(pad9, [(0, 30, 0.375), (-17, 0, 0.375), (17, 0, 0.375)]))
fillet.Radius = 1.5

# Sketch on XY plane
sketch10 = body.newObject("Sketcher::SketchObject", "Sketch009")
sketch10.AttachmentSupport = (doc.getObject("XY_Plane"), [""])
sketch10.MapMode = "FlatFace"
add_polygon(sketch10, [(-12.3, 1), (-13.8, 3.6), (-15.3, 1)])  # lines 0-2
add_polygon(sketch10, [(15.3, 1), (13.8, 3.6), (12.3, 1)])  # lines 3-5
sketch10.addConstraint([
    Sketcher.Constraint("Horizontal", 2),
    Sketcher.Constraint("Horizontal", 5),
    Sketcher.Constraint("Symmetric", 2, 2, 4, 2, -2),
    Sketcher.Constraint("Equal", 2, 5),
    Sketcher.Constraint("Equal", 0, 1),
    Sketcher.Constraint("Equal", 1, 4),
    Sketcher.Constraint("DistanceX", 2, 1, 2, 2, 3.0),
    Sketcher.Constraint("Angle", 0, Q("120 deg")),
    Sketcher.Constraint("DistanceY", -1, 1, 1, 2, 1.0),
    Sketcher.Constraint("DistanceX", -1, 1, 3, 2, 13.825569),
    Sketcher.Constraint("DistanceY", -1, 1, 3, 2, 3.573591),
])
pad10 = body.newObject("PartDesign::Pad", "Pad009")
pad10.Profile = sketch10
pad10.Length = 1

doc.recompute()
